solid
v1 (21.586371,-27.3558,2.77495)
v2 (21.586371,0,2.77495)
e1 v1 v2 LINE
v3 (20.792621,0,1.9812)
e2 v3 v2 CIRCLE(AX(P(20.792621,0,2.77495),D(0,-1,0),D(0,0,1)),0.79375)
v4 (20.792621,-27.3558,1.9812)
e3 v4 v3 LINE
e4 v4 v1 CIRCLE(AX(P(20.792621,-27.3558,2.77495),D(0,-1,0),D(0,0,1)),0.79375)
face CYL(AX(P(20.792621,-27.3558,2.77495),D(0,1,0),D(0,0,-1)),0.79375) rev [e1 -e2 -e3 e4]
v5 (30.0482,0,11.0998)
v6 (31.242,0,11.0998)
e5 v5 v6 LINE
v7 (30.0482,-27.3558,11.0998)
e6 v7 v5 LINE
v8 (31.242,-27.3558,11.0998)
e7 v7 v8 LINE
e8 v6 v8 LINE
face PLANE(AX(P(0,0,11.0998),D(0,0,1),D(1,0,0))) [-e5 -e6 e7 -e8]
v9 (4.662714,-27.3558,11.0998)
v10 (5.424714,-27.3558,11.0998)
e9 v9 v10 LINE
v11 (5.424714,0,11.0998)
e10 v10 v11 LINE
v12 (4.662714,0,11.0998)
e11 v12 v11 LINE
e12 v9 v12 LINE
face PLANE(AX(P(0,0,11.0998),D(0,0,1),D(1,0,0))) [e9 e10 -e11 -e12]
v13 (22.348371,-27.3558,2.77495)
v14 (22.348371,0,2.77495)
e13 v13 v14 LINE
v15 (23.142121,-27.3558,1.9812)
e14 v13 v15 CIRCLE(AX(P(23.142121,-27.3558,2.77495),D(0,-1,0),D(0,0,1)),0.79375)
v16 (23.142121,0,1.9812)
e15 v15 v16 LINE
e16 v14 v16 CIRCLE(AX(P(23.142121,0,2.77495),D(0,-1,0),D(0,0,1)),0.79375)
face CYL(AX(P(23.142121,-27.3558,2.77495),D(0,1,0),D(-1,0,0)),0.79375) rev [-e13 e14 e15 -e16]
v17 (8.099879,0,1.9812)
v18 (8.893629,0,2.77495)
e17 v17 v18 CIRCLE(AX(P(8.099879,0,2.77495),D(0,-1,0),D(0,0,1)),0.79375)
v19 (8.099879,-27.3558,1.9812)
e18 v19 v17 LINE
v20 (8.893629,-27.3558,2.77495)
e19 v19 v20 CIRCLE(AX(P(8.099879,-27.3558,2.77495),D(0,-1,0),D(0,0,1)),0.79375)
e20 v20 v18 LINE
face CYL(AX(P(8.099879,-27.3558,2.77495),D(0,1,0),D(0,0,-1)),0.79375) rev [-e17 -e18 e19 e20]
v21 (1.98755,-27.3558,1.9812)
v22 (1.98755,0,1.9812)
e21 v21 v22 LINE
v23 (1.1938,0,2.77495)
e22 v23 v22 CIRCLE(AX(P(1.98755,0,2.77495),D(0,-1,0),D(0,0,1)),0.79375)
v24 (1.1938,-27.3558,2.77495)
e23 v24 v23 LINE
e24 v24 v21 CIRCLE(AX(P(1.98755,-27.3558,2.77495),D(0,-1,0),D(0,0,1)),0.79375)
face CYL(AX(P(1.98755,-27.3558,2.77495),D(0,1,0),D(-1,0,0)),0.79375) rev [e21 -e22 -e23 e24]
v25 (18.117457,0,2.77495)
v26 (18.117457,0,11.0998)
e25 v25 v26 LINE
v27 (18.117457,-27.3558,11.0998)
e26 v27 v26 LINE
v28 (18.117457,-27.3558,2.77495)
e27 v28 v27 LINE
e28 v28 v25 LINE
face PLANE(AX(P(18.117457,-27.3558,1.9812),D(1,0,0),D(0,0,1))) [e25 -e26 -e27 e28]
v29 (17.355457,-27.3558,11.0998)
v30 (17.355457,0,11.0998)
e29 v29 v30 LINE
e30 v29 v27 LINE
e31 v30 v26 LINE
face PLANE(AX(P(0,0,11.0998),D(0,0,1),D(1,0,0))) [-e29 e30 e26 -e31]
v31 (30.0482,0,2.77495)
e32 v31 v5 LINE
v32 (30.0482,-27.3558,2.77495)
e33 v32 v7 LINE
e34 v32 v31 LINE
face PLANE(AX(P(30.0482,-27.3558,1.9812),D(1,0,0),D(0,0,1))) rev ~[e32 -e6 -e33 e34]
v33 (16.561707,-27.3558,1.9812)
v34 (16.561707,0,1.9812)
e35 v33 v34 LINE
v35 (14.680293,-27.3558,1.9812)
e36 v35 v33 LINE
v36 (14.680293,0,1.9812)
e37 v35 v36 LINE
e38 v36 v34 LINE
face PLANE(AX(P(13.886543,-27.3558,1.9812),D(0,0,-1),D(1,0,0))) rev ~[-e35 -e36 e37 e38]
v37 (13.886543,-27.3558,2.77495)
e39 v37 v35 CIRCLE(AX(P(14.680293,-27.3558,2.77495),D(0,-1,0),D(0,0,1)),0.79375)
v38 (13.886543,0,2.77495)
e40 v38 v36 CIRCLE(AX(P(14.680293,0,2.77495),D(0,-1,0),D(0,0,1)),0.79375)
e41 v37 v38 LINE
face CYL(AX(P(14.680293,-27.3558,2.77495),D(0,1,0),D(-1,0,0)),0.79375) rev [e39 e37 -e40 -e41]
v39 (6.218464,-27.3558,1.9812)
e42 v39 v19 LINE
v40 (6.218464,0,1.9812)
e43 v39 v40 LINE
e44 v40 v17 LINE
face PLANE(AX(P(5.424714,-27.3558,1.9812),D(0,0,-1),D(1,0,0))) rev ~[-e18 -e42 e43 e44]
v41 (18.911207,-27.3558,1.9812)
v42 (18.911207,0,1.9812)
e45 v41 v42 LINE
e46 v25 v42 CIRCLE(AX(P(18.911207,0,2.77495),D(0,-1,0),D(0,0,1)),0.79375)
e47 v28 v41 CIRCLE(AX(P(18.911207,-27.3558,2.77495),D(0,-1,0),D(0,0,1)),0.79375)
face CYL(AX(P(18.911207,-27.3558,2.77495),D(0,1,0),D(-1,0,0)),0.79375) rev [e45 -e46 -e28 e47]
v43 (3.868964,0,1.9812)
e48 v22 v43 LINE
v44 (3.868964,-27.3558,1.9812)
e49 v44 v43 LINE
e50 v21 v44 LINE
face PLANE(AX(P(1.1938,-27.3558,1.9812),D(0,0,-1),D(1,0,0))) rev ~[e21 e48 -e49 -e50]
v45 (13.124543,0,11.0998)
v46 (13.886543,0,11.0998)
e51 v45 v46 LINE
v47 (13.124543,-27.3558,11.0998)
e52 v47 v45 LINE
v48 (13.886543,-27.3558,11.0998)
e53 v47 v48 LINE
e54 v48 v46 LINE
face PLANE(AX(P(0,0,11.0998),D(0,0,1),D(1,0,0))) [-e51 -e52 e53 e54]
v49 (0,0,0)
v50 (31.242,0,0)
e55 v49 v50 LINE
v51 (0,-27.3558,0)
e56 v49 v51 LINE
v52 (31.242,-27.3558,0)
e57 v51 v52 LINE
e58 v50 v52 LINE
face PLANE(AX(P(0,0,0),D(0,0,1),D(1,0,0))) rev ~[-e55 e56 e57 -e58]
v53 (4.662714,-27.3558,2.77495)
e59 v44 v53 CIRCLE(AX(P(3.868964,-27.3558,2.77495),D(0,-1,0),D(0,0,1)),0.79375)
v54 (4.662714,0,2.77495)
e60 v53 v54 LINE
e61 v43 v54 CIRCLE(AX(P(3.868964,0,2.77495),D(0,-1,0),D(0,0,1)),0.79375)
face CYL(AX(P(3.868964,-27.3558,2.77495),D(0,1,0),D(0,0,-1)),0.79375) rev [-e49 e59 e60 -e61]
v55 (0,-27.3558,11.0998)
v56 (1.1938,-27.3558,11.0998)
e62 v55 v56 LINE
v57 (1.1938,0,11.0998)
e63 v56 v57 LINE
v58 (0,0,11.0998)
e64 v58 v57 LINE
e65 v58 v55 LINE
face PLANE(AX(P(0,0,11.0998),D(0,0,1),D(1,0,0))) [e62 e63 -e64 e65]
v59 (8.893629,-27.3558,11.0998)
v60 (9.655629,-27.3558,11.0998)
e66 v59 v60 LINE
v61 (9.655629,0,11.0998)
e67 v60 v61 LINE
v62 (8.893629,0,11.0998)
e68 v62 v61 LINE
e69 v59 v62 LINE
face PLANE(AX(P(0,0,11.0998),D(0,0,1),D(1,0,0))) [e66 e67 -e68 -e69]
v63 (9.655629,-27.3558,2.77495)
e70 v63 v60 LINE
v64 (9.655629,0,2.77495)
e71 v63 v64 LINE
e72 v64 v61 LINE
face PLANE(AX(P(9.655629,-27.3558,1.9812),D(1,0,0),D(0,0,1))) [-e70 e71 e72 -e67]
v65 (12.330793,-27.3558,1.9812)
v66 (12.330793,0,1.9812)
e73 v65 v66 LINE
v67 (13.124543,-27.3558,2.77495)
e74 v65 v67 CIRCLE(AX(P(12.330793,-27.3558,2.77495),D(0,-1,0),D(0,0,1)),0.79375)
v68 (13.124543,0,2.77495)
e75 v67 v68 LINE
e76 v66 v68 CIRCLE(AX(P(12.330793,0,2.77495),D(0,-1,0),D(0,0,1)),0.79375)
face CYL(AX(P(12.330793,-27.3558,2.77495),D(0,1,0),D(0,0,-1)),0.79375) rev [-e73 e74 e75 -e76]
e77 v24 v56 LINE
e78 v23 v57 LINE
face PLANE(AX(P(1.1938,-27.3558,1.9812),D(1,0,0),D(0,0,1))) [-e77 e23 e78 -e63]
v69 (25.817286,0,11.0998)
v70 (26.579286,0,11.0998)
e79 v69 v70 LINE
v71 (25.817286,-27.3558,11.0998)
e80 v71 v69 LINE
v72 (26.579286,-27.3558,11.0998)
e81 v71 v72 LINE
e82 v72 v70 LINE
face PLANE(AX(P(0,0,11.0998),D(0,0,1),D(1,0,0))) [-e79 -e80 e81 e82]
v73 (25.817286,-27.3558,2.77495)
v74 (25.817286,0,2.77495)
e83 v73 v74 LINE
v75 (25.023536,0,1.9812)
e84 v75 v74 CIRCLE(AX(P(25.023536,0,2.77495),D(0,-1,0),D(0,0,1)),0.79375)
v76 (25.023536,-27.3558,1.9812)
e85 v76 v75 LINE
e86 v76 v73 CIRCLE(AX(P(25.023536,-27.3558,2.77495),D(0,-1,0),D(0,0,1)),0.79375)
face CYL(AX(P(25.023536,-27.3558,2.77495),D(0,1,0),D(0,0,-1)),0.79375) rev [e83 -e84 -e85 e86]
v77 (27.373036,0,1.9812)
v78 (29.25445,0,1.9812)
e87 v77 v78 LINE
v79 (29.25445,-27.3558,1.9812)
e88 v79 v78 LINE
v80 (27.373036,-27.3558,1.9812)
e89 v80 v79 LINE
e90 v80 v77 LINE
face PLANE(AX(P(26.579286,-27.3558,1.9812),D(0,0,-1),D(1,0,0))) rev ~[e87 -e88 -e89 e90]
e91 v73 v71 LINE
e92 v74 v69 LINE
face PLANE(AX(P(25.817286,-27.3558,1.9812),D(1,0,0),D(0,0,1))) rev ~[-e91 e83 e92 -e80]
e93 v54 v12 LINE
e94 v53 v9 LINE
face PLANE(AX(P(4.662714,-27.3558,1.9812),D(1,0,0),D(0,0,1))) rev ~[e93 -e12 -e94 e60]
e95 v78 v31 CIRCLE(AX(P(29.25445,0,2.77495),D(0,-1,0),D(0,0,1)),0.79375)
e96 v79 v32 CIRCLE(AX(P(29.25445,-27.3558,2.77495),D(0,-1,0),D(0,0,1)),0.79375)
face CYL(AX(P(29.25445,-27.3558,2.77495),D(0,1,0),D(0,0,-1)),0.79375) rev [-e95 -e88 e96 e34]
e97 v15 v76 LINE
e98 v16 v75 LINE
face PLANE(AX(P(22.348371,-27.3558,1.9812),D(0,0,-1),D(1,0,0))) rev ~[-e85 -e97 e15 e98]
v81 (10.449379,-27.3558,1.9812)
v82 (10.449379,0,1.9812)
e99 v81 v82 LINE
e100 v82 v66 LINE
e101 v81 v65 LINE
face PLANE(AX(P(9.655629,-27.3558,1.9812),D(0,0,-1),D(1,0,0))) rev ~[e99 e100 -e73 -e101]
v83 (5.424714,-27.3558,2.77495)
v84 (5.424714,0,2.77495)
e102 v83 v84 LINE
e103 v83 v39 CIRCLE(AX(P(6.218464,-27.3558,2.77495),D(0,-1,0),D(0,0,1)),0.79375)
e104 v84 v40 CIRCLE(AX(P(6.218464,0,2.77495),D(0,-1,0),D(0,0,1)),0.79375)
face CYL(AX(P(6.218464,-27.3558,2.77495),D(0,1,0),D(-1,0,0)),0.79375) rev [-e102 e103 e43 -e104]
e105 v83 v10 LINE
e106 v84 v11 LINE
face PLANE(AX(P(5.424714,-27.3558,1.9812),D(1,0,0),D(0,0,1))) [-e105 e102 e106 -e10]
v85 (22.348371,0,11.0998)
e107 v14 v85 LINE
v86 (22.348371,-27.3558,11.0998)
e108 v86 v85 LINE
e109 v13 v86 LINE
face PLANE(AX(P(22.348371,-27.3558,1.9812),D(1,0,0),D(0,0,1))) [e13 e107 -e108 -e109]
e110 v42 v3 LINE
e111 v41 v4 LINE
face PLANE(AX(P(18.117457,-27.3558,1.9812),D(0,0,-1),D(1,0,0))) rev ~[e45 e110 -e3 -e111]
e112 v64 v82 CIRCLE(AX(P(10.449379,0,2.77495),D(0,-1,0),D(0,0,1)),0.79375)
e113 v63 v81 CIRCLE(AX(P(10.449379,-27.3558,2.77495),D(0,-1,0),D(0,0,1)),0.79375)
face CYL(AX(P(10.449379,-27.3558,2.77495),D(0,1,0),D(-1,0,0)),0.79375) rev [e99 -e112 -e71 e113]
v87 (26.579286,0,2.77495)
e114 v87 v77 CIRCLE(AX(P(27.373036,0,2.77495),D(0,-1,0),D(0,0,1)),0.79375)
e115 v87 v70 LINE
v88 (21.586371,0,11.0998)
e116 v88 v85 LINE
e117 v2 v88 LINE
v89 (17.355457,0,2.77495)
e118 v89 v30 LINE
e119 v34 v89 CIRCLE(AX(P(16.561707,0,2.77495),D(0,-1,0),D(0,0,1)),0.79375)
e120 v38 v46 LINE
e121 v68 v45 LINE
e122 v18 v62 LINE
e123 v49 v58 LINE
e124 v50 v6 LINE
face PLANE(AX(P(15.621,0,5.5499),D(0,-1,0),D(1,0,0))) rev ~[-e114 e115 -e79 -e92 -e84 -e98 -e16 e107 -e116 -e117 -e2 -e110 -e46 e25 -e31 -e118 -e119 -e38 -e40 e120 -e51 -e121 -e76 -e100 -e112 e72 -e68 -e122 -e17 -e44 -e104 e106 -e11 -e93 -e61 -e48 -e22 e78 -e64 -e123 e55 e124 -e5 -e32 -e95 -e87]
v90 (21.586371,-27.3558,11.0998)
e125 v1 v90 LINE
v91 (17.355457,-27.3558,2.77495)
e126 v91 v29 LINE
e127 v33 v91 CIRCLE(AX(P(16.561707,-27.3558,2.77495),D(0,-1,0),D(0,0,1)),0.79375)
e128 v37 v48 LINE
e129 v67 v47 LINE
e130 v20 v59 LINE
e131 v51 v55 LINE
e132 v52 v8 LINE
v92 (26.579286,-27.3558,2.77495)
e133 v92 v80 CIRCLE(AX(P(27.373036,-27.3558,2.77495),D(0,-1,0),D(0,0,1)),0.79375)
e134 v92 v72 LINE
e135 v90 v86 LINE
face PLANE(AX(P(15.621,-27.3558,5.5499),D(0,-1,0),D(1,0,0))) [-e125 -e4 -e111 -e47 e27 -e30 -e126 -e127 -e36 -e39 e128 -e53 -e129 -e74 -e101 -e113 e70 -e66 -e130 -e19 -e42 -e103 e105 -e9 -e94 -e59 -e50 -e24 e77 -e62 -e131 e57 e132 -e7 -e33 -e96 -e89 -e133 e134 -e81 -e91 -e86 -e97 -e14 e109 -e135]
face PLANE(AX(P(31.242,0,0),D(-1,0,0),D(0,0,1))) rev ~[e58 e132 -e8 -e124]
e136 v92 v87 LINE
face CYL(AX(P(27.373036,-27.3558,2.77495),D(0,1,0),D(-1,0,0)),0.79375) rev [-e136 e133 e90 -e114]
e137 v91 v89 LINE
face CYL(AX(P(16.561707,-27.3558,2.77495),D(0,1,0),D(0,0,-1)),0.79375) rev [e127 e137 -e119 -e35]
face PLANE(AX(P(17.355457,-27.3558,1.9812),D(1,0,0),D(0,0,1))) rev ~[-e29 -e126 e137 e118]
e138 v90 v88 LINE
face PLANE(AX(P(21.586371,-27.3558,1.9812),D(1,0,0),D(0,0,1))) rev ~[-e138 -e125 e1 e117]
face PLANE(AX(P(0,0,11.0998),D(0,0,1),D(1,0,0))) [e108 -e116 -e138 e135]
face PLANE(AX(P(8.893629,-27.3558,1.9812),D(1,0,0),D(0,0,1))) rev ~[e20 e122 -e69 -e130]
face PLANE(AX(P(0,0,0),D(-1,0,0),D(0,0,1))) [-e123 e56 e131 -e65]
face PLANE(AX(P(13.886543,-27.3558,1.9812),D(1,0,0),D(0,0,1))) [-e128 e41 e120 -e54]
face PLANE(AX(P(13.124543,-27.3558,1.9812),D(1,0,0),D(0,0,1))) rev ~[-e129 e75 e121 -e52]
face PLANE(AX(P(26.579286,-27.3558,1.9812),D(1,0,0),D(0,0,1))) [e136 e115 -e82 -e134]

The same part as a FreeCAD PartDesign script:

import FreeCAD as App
import Part
import Sketcher

V = App.Vector
Q = App.Units.Quantity


def edges_at(feature, points):
    """Names of the edges that pass closest to the given points."""
    edges = feature.Shape.Edges
    near = lambda p: min(range(len(edges)), key=lambda i: edges[i].distToShape(Part.Vertex(*p))[0])
    return sorted({f"Edge{near(p) + 1}" for p in points})

doc = App.newDocument("Part")
params = doc.addObject("Spreadsheet::Sheet", "Params")
for row, (alias, value) in enumerate([
    ("sketch1_width", "1.23 in"),
    ("sketch1_height", "0.437 in"),
    ("pad1_length", "1.077 in"),
    ("sketch2_height", "0.359 in"),
    ("fillet_radius", "0.03125 in"),
], start=1):
    params.set(f"A{row}", alias)
    params.set(f"B{row}", "=" + value)
    params.setAlias(f"B{row}", alias)

body = doc.addObject("PartDesign::Body", "Body")

# Sketch on XZ plane
sketch1 = doc.addObject("Sketcher::SketchObject", "Sketch")
body.addObject(sketch1)
sketch1.AttachmentSupport = (doc.XZ_Plane, [""])
sketch1.MapMode = "FlatFace"
sketch1.addGeometry([
    Part.LineSegment(V(0, 11.0998, 0), V(0, 0, 0)),
    Part.LineSegment(V(0, 0, 0), V(31.242, 0, 0)),
    Part.LineSegment(V(31.242, 0, 0), V(31.242, 11.0998, 0)),
    Part.LineSegment(V(31.242, 11.0998, 0), V(0, 11.0998, 0)),
], False)
sketch1.addConstraint([
    Sketcher.Constraint("Coincident", 0, 2, 1, 1),
    Sketcher.Constraint("Coincident", 1, 2, 2, 1),
    Sketcher.Constraint("Coincident", 2, 2, 3, 1),
    Sketcher.Constraint("Coincident", 3, 2, 0, 1),
    Sketcher.Constraint("Vertical", 0),
    Sketcher.Constraint("Horizontal", 1),
    Sketcher.Constraint("Vertical", 2),
    Sketcher.Constraint("Horizontal", 3),
    Sketcher.Constraint("Coincident", 0, 2, -1, 1),
    Sketcher.Constraint("DistanceX", 1, 1, 1, 2, Q("1.23 in")),
    Sketcher.Constraint("DistanceY", 0, 2, 0, 1, Q("0.437 in")),
])
sketch1.setExpression("Constraints[9]", "Params.sketch1_width")
sketch1.setExpression("Constraints[10]", "Params.sketch1_height")
pad1 = doc.addObject("PartDesign::Pad", "Pad")
body.addObject(pad1)
pad1.Profile = sketch1
pad1.setExpression("Length", "Params.pad1_length")

# Sketch on XZ plane
sketch2 = doc.addObject("Sketcher::SketchObject", "Sketch001")
body.addObject(sketch2)
sketch2.AttachmentSupport = (doc.XZ_Plane, [""])
sketch2.MapMode = "FlatFace"
sketch2.AttachmentOffset = App.Placement(V(0, 0, 1.077 * 25.4), App.Rotation())
sketch2.addGeometry([
    Part.LineSegment(V(1.1938, 11.0998, 0), V(1.1938, 1.9812, 0)),  # 0
    Part.LineSegment(V(1.1938, 1.9812, 0), V(4.662714, 1.9812, 0)),  # 1
    Part.LineSegment(V(4.662714, 1.9812, 0), V(4.662714, 11.0998, 0)),  # 2
    Part.LineSegment(V(4.662714, 11.0998, 0), V(1.1938, 11.0998, 0)),  # 3
    Part.LineSegment(V(5.424714, 11.0998, 0), V(5.424714, 1.9812, 0)),  # 4
    Part.LineSegment(V(5.424714, 1.9812, 0), V(8.893629, 1.9812, 0)),  # 5
    Part.LineSegment(V(8.893629, 1.9812, 0), V(8.893629, 11.0998, 0)),  # 6
    Part.LineSegment(V(8.893629, 11.0998, 0), V(5.424714, 11.0998, 0)),  # 7
    Part.LineSegment(V(9.655629, 11.0998, 0), V(9.655629, 1.9812, 0)),  # 8
    Part.LineSegment(V(9.655629, 1.9812, 0), V(13.124543, 1.9812, 0)),  # 9
    Part.LineSegment(V(13.124543, 1.9812, 0), V(13.124543, 11.0998, 0)),  # 10
    Part.LineSegment(V(13.124543, 11.0998, 0), V(9.655629, 11.0998, 0)),  # 11
    Part.LineSegment(V(13.886543, 11.0998, 0), V(13.886543, 1.9812, 0)),  # 12
    Part.LineSegment(V(13.886543, 1.9812, 0), V(17.355457, 1.9812, 0)),  # 13
    Part.LineSegment(V(17.355457, 1.9812, 0), V(17.355457, 11.0998, 0)),  # 14
    Part.LineSegment(V(17.355457, 11.0998, 0), V(13.886543, 11.0998, 0)),  # 15
    Part.LineSegment(V(18.117457, 11.0998, 0), V(18.117457, 1.9812, 0)),  # 16
    Part.LineSegment(V(18.117457, 1.9812, 0), V(21.586371, 1.9812, 0)),  # 17
    Part.LineSegment(V(21.586371, 1.9812, 0), V(21.586371, 11.0998, 0)),  # 18
    Part.LineSegment(V(21.586371, 11.0998, 0), V(18.117457, 11.0998, 0)),  # 19
    Part.LineSegment(V(22.348371, 11.0998, 0), V(22.348371, 1.9812, 0)),  # 20
    Part.LineSegment(V(22.348371, 1.9812, 0), V(25.817286, 1.9812, 0)),  # 21
    Part.LineSegment(V(25.817286, 1.9812, 0), V(25.817286, 11.0998, 0)),  # 22
    Part.LineSegment(V(25.817286, 11.0998, 0), V(22.348371, 11.0998, 0)),  # 23
    Part.LineSegment(V(26.579286, 11.0998, 0), V(26.579286, 1.9812, 0)),  # 24
    Part.LineSegment(V(26.579286, 1.9812, 0), V(30.0482, 1.9812, 0)),  # 25
    Part.LineSegment(V(30.0482, 1.9812, 0), V(30.0482, 11.0998, 0)),  # 26
    Part.LineSegment(V(30.0482, 11.0998, 0), V(26.579286, 11.0998, 0)),  # 27
], False)
sketch2.addConstraint([
    Sketcher.Constraint("Coincident", 0, 2, 1, 1),
    Sketcher.Constraint("Coincident", 1, 2, 2, 1),
    Sketcher.Constraint("Coincident", 2, 2, 3, 1),
    Sketcher.Constraint("Coincident", 3, 2, 0, 1),
    Sketcher.Constraint("Coincident", 4, 2, 5, 1),
    Sketcher.Constraint("Coincident", 5, 2, 6, 1),
    Sketcher.Constraint("Coincident", 6, 2, 7, 1),
    Sketcher.Constraint("Coincident", 7, 2, 4, 1),
    Sketcher.Constraint("Coincident", 8, 2, 9, 1),
    Sketcher.Constraint("Coincident", 9, 2, 10, 1),
    Sketcher.Constraint("Coincident", 10, 2, 11, 1),
    Sketcher.Constraint("Coincident", 11, 2, 8, 1),
    Sketcher.Constraint("Coincident", 12, 2, 13, 1),
    Sketcher.Constraint("Coincident", 13, 2, 14, 1),
    Sketcher.Constraint("Coincident", 14, 2, 15, 1),
    Sketcher.Constraint("Coincident", 15, 2, 12, 1),
    Sketcher.Constraint("Coincident", 16, 2, 17, 1),
    Sketcher.Constraint("Coincident", 17, 2, 18, 1),
    Sketcher.Constraint("Coincident", 18, 2, 19, 1),
    Sketcher.Constraint("Coincident", 19, 2, 16, 1),
    Sketcher.Constraint("Coincident", 20, 2, 21, 1),
    Sketcher.Constraint("Coincident", 21, 2, 22, 1),
    Sketcher.Constraint("Coincident", 22, 2, 23, 1),
    Sketcher.Constraint("Coincident", 23, 2, 20, 1),
    Sketcher.Constraint("Coincident", 24, 2, 25, 1),
    Sketcher.Constraint("Coincident", 25, 2, 26, 1),
    Sketcher.Constraint("Coincident", 26, 2, 27, 1),
    Sketcher.Constraint("Coincident", 27, 2, 24, 1),
    Sketcher.Constraint("Vertical", 0),
    Sketcher.Constraint("Horizontal", 1),
    Sketcher.Constraint("Vertical", 2),
    Sketcher.Constraint("Horizontal", 3),
    Sketcher.Constraint("Vertical", 4),
    Sketcher.Constraint("Horizontal", 5),
    Sketcher.Constraint("Vertical", 6),
    Sketcher.Constraint("Horizontal", 7),
    Sketcher.Constraint("Vertical", 8),
    Sketcher.Constraint("Horizontal", 9),
    Sketcher.Constraint("Vertical", 10),
    Sketcher.Constraint("Horizontal", 11),
    Sketcher.Constraint("Vertical", 12),
    Sketcher.Constraint("Horizontal", 13),
    Sketcher.Constraint("Vertical", 14),
    Sketcher.Constraint("Horizontal", 15),
    Sketcher.Constraint("Vertical", 16),
    Sketcher.Constraint("Horizontal", 17),
    Sketcher.Constraint("Vertical", 18),
    Sketcher.Constraint("Horizontal", 19),
    Sketcher.Constraint("Vertical", 20),
    Sketcher.Constraint("Horizontal", 21),
    Sketcher.Constraint("Vertical", 22),
    Sketcher.Constraint("Horizontal", 23),
    Sketcher.Constraint("Vertical", 24),
    Sketcher.Constraint("Horizontal", 25),
    Sketcher.Constraint("Vertical", 26),
    Sketcher.Constraint("Horizontal", 27),
    Sketcher.Constraint("Horizontal", 1, 2, 4, 2),
    Sketcher.Constraint("Horizontal", 3, 2, 6, 2),
    Sketcher.Constraint("Horizontal", 5, 2, 8, 2),
    Sketcher.Constraint("Horizontal", 7, 2, 10, 2),
    Sketcher.Constraint("Horizontal", 9, 2, 12, 2),
    Sketcher.Constraint("Horizontal", 11, 2, 14, 2),
    Sketcher.Constraint("Horizontal", 13, 2, 16, 2),
    Sketcher.Constraint("Horizontal", 15, 2, 18, 2),
    Sketcher.Constraint("Horizontal", 17, 2, 20, 2),
    Sketcher.Constraint("Horizontal", 19, 2, 22, 2),
    Sketcher.Constraint("Horizontal", 21, 2, 24, 2),
    Sketcher.Constraint("Horizontal", 23, 2, 26, 2),
    Sketcher.Constraint("Equal", 3, 5),
    Sketcher.Constraint("Equal", 7, 9),
    Sketcher.Constraint("Equal", 11, 13),
    Sketcher.Constraint("Equal", 15, 17),
    Sketcher.Constraint("Equal", 19, 21),
    Sketcher.Constraint("Equal", 23, 25),
    Sketcher.Constraint("DistanceY", 0, 2, 0, 1, Q("0.359 in")),
    Sketcher.Constraint("DistanceX", 1, 2, 4, 2, Q("0.03 in")),
    Sketcher.Constraint("DistanceX", 5, 2, 8, 2, Q("0.03 in")),
    Sketcher.Constraint("DistanceX", 9, 2, 12, 2, Q("0.03 in")),
    Sketcher.Constraint("DistanceX", 13, 2, 16, 2, Q("0.03 in")),
    Sketcher.Constraint("DistanceX", 17, 2, 20, 2, Q("0.03 in")),
    Sketcher.Constraint("DistanceX", 21, 2, 24, 2, Q("0.03 in")),
    Sketcher.Constraint("DistanceX", -1, 1, 0, 2, Q("0.047 in")),
    Sketcher.Constraint("DistanceY", -1, 1, 0, 2, Q("0.078 in")),
    Sketcher.Constraint("DistanceX", -1, 1, 25, 2, Q("1.183 in")),
])
sketch2.setExpression("Constraints[74]", "Params.sketch2_height")
pocket1 = doc.addObject("PartDesign::Pocket", "Pocket")
body.addObject(pocket1)
pocket1.Profile = sketch2
pocket1.Type = "ThroughAll"
doc.recompute()

fillet = doc.addObject("PartDesign::Fillet", "Fillet")
body.addObject(fillet)
fillet.Base = (pocket1, edges_at(pocket1, [
    (1.194, -13.678, 1.981),
    (4.663, -13.678, 1.981),
    (5.425, -13.678, 1.981),
    (8.894, -13.678, 1.981),
    (9.656, -13.678, 1.981),
    (13.125, -13.678, 1.981),
    (13.887, -13.678, 1.981),
    (17.355, -13.678, 1.981),
    (18.117, -13.678, 1.981),
    (21.586, -13.678, 1.981),
    (22.348, -13.678, 1.981),
    (25.817, -13.678, 1.981),
    (26.579, -13.678, 1.981),
    (30.048, -13.678, 1.981),
]))
fillet.setExpression("Radius", "Params.fillet_radius")

doc.recompute()
